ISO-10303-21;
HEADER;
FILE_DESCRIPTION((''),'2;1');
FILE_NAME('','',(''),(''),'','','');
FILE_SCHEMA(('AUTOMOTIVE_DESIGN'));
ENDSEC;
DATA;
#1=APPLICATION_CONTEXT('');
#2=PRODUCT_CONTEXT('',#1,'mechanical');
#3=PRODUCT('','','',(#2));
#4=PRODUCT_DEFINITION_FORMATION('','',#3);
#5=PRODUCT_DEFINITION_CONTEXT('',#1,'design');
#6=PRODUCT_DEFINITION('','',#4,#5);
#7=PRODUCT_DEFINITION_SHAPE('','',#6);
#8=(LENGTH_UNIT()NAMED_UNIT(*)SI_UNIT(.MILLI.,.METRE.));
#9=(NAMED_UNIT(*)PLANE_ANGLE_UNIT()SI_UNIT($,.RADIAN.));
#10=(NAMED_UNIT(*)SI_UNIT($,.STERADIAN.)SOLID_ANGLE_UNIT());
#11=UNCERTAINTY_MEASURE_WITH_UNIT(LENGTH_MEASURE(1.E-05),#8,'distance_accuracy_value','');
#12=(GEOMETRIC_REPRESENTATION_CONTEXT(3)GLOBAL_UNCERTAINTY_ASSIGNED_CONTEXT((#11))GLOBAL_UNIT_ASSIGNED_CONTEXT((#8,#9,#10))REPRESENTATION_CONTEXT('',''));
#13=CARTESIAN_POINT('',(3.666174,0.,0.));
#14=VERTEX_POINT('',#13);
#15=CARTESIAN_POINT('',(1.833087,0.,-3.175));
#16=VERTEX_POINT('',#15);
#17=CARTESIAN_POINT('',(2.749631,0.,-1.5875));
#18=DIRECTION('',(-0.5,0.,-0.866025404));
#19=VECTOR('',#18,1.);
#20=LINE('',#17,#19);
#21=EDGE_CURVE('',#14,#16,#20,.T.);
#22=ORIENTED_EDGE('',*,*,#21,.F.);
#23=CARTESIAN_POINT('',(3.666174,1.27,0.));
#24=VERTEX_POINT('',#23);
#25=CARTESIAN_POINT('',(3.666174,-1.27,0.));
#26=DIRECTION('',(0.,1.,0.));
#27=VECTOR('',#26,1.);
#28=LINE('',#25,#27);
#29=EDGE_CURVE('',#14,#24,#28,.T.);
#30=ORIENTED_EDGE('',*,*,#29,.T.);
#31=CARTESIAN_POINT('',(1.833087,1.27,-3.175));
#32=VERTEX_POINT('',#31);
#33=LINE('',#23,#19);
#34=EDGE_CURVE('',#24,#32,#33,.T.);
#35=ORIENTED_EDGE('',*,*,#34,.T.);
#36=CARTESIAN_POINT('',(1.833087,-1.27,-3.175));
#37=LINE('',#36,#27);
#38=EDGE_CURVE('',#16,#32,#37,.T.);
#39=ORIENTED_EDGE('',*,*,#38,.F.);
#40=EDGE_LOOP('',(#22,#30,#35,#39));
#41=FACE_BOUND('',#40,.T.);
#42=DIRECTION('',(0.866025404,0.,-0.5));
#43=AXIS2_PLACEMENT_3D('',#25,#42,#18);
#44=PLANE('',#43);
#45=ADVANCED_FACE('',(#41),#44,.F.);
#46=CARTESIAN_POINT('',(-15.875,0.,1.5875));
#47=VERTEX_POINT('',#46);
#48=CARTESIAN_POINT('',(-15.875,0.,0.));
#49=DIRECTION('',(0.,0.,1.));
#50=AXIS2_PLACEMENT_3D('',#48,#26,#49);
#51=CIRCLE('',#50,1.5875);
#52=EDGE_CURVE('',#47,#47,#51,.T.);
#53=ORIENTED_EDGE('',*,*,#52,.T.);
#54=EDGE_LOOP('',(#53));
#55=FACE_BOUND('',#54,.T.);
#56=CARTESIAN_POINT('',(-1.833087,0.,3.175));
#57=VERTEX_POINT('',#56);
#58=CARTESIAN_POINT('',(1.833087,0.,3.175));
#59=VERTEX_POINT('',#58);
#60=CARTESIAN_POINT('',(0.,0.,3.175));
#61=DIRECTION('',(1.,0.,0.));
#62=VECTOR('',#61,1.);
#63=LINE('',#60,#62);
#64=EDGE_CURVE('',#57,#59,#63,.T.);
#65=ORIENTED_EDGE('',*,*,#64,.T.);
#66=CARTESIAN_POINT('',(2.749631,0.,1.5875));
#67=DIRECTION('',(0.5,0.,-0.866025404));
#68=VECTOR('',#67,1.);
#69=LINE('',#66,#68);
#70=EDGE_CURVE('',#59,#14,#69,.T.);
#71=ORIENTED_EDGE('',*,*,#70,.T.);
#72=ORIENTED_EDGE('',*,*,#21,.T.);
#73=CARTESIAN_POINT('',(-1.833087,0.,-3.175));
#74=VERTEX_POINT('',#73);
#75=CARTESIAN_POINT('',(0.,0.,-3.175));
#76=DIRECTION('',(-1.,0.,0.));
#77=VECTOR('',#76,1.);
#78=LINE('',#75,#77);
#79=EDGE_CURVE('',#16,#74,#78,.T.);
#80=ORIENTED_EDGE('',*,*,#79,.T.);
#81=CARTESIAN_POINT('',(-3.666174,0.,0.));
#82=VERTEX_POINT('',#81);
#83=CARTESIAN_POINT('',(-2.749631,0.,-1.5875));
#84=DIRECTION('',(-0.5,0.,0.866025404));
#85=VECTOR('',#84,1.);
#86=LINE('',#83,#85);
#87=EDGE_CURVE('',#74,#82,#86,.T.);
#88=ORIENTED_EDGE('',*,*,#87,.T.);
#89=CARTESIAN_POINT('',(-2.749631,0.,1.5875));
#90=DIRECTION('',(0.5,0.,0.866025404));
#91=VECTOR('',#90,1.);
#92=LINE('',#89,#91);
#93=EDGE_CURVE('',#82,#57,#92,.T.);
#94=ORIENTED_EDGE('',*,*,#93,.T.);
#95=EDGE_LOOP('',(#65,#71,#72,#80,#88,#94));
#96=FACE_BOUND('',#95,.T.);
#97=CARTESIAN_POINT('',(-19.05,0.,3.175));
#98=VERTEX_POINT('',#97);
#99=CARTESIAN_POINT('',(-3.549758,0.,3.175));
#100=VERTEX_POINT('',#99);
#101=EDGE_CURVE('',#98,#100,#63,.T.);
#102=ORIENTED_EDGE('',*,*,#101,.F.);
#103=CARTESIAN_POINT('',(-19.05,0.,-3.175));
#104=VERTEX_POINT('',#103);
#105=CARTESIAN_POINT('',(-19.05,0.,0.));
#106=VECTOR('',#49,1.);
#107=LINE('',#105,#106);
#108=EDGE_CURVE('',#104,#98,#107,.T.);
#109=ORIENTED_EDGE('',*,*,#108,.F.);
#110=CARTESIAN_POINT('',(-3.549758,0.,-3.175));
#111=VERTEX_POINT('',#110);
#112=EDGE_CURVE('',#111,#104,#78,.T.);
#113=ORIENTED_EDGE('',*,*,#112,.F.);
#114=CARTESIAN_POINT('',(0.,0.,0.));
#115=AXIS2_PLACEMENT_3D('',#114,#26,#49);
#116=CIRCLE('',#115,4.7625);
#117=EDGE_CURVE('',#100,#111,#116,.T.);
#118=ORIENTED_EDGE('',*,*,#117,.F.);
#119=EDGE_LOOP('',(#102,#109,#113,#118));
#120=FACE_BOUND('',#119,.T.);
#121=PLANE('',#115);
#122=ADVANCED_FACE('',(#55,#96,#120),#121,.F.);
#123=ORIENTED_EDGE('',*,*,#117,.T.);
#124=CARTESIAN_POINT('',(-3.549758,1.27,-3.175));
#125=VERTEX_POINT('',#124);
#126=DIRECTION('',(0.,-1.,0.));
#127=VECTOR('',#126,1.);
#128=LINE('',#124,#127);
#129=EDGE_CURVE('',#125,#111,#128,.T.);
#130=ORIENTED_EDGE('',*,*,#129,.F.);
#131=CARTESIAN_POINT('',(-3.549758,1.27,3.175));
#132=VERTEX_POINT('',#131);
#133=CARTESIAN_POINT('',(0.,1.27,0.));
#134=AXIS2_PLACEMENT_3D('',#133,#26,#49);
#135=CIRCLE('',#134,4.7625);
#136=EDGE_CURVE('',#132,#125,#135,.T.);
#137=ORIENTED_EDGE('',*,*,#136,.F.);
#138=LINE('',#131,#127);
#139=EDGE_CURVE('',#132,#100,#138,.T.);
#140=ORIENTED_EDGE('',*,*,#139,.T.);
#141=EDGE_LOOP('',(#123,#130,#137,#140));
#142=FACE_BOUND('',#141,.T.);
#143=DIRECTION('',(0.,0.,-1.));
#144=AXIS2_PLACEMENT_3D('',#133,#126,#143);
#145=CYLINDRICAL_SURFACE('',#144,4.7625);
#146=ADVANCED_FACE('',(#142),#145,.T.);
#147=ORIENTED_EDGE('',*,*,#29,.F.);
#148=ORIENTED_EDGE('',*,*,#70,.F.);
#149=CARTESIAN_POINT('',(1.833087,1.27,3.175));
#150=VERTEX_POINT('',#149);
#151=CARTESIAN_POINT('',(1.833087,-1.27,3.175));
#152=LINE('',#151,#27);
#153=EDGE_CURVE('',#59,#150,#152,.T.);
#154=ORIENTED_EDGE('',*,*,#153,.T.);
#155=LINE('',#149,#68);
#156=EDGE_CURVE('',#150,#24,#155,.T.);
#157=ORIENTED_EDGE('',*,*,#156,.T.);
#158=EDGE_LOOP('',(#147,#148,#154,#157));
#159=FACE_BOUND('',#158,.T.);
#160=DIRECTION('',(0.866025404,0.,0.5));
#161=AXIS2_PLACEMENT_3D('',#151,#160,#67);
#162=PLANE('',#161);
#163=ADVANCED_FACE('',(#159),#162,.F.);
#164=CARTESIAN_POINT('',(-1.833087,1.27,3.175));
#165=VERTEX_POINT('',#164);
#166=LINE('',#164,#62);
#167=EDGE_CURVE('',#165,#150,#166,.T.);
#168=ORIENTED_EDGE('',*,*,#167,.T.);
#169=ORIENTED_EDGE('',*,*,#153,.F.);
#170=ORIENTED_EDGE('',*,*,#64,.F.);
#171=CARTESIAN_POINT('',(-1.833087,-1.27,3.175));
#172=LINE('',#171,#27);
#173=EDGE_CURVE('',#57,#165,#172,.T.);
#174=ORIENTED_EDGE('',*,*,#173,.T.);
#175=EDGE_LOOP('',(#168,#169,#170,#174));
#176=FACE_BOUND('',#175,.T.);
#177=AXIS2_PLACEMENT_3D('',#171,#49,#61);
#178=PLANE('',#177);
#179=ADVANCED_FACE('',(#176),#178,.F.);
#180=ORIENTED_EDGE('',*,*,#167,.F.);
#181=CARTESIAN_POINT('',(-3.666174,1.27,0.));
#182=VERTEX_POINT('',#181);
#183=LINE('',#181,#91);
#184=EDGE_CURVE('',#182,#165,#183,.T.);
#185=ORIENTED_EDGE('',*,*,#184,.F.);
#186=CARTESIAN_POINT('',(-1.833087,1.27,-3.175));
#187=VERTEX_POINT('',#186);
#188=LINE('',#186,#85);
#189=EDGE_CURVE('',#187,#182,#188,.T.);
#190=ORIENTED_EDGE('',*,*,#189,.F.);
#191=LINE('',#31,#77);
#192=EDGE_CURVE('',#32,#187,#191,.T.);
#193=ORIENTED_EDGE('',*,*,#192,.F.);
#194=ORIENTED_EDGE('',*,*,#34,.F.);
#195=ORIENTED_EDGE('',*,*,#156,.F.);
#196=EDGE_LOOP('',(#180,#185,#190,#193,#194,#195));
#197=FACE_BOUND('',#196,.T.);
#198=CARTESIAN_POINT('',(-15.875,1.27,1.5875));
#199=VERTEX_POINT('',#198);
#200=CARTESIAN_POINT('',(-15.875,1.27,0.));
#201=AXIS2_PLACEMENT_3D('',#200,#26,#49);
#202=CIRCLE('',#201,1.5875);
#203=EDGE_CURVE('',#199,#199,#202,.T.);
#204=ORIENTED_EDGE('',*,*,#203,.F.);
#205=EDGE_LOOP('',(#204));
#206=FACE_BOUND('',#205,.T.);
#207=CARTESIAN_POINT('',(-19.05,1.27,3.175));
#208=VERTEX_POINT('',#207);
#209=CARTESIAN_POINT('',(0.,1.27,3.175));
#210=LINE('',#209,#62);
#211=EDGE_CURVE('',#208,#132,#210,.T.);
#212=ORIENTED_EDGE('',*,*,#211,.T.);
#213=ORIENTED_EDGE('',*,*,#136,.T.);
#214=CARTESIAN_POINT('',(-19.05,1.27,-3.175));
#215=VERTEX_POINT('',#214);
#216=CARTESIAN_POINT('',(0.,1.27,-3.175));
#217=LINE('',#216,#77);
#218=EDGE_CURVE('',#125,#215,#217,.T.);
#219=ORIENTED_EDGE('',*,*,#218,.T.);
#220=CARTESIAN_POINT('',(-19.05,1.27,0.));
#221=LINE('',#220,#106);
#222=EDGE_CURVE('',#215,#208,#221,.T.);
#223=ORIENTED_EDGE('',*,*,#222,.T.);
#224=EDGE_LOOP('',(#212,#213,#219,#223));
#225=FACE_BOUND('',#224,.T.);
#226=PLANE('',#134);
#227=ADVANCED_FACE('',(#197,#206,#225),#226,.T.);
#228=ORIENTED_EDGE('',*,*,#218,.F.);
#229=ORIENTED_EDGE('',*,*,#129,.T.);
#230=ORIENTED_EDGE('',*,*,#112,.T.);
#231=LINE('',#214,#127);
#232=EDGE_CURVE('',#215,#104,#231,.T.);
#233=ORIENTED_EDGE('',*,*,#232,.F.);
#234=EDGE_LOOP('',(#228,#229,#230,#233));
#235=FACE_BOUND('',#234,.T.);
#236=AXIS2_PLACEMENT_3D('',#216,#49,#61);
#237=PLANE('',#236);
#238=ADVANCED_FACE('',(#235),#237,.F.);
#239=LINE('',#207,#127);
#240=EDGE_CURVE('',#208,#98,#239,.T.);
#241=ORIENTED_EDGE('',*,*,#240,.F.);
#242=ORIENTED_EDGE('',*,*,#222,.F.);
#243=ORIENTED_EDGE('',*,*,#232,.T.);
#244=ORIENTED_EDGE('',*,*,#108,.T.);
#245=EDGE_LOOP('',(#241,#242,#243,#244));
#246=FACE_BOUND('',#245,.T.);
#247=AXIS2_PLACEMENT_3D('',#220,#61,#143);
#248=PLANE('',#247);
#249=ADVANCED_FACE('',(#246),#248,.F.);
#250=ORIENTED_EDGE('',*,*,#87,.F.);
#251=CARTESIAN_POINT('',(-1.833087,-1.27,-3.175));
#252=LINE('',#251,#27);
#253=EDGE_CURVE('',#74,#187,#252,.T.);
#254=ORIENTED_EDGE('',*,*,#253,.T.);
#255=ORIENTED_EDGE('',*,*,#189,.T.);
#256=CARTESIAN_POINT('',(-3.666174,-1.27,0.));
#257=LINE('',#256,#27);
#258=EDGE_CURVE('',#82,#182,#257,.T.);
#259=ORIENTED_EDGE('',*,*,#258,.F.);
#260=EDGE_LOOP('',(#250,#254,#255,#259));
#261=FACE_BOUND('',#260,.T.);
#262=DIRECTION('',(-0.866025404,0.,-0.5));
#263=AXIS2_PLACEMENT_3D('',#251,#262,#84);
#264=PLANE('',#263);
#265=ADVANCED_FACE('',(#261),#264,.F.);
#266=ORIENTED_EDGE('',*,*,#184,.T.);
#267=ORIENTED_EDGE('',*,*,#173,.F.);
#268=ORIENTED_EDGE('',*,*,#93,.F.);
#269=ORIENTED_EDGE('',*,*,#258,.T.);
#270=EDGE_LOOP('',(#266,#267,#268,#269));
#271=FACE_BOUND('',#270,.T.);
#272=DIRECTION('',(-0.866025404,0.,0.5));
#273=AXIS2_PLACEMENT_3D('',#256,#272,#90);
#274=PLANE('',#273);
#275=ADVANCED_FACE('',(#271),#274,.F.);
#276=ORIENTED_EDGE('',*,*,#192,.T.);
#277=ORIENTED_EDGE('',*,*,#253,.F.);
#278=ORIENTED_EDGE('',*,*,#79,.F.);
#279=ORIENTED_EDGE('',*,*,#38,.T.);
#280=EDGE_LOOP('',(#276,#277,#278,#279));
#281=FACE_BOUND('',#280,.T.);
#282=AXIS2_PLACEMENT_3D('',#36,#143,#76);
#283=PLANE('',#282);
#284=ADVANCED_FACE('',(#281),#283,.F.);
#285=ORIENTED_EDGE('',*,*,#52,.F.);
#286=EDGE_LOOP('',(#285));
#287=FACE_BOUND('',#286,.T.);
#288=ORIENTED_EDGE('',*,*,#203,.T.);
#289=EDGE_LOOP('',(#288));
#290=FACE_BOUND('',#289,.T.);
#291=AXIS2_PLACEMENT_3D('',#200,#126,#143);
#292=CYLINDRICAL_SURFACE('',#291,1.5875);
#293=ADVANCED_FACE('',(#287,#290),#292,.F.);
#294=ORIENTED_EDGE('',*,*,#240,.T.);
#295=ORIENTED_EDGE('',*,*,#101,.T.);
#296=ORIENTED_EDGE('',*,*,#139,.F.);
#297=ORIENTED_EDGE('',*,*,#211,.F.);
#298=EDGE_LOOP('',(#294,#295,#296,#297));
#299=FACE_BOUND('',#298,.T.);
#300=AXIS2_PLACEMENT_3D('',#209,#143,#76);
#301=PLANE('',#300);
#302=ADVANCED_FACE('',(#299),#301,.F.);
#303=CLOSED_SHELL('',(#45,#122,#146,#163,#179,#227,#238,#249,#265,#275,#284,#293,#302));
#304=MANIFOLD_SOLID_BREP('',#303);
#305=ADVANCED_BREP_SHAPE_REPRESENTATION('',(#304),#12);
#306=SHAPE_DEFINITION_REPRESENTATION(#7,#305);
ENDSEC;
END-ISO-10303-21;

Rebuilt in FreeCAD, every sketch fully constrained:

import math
import FreeCAD as App
import Part
import Sketcher

V = App.Vector
Q = App.Units.Quantity


def add_polygon(sketch, points):
    """Adds a closed chain of lines whose ends are joined by coincident constraints."""
    first, n = sketch.GeometryCount, len(points)
    for a, b in zip(points, points[1:] + points[:1]):
        sketch.addGeometry(Part.LineSegment(App.Vector(*a, 0), App.Vector(*b, 0)), False)
    for i in range(n):
        sketch.addConstraint(Sketcher.Constraint("Coincident", first + i, 2, first + (i + 1) % n, 1))

doc = App.newDocument("Part")
body = doc.addObject("PartDesign::Body", "Body")

sketch1 = body.newObject("Sketcher::SketchObject", "Sketch")
sketch1.AttachmentSupport = (doc.getObject("XZ_Plane"), [""])
sketch1.MapMode = "FlatFace"
sketch1.addGeometry(Part.LineSegment(V(-19.1, 3.2, 0), V(-3.5, 3.2, 0)), False)
sketch1.addGeometry(Part.ArcOfCircle(Part.Circle(V(0, 0, 0), V(0, 0, 1), 4.8), math.radians(0), math.radians(138)), False)
sketch1.addGeometry(Part.ArcOfCircle(Part.Circle(V(0, 0, 0), V(0, 0, 1), 4.8), math.radians(-138), math.radians(0)), False)
sketch1.addGeometry(Part.LineSegment(V(-3.5, -3.2, 0), V(-19.1, -3.2, 0)), False)
sketch1.addGeometry(Part.LineSegment(V(-19.1, -3.2, 0), V(-19.1, 3.2, 0)), False)
sketch1.addGeometry(Part.Circle(V(-15.9, 0, 0), V(0, 0, 1), 1.6), False)
sketch1.addConstraint(Sketcher.Constraint("Coincident", 0, 2, 1, 2))
sketch1.addConstraint(Sketcher.Constraint("Tangent", 1, 1, 2, 2))
sketch1.addConstraint(Sketcher.Constraint("Coincident", 2, 1, 3, 1))
sketch1.addConstraint(Sketcher.Constraint("Coincident", 3, 2, 4, 1))
sketch1.addConstraint(Sketcher.Constraint("Coincident", 4, 2, 0, 1))
sketch1.addConstraint(Sketcher.Constraint("Horizontal", 0))
sketch1.addConstraint(Sketcher.Constraint("Horizontal", 3))
sketch1.addConstraint(Sketcher.Constraint("Vertical", 4))
sketch1.addConstraint(Sketcher.Constraint("Coincident", 1, 3, -1, 1))
sketch1.addConstraint(Sketcher.Constraint("Equal", 1, 2))
sketch1.addConstraint(Sketcher.Constraint("PointOnObject", 5, 3, -1))
sketch1.addConstraint(Sketcher.Constraint("PointOnObject", 1, 1, -1))
sketch1.addConstraint(Sketcher.Constraint("Vertical", 0, 2, 2, 1))
sketch1.addConstraint(Sketcher.Constraint("Diameter", 5, Q("0.125 in")))
sketch1.addConstraint(Sketcher.Constraint("Radius", 1, Q("0.1875 in")))
sketch1.addConstraint(Sketcher.Constraint("DistanceY", 4, 1, 4, 2, Q("0.25 in")))
sketch1.addConstraint(Sketcher.Constraint("DistanceX", 3, 2, -1, 1, Q("0.75 in")))
sketch1.addConstraint(Sketcher.Constraint("DistanceX", 5, 3, -1, 1, Q("0.625 in")))
pad1 = body.newObject("PartDesign::Pad", "Pad")
pad1.Profile = sketch1
pad1.Length = Q("0.05 in")
pad1.Reversed = True

sketch2 = body.newObject("Sketcher::SketchObject", "Sketch001")
sketch2.AttachmentSupport = (doc.getObject("XZ_Plane"), [""])
sketch2.MapMode = "FlatFace"
sketch2.AttachmentOffset = App.Placement(V(0, 0, -0.05 * 25.4), App.Rotation())
add_polygon(sketch2, [(3.7, 0), (1.8, -3.2), (-1.8, -3.2), (-3.7, 0), (-1.8, 3.2), (1.8, 3.2)])
sketch2.addConstraint(Sketcher.Constraint("Horizontal", 1))
sketch2.addConstraint(Sketcher.Constraint("Horizontal", 4))
sketch2.addConstraint(Sketcher.Constraint("Symmetric", 0, 2, 3, 2, -1, 1))
sketch2.addConstraint(Sketcher.Constraint("Symmetric", 2, 2, 5, 2, -1, 1))
sketch2.addConstraint(Sketcher.Constraint("PointOnObject", 2, 2, -1))
sketch2.addConstraint(Sketcher.Constraint("Parallel", 2, 5))
sketch2.addConstraint(Sketcher.Constraint("Vertical", 1, 2, 3, 2))
sketch2.addConstraint(Sketcher.Constraint("Angle", 0, Q("-120 deg")))
sketch2.addConstraint(Sketcher.Constraint("DistanceY", 1, 2, 3, 2, Q("0.25 in")))
sketch2.addConstraint(Sketcher.Constraint("DistanceX", 1, 2, 1, 1, 3.666174))
pocket1 = body.newObject("PartDesign::Pocket", "Pocket")
pocket1.Profile = sketch2
pocket1.Length = Q("0.1 in")
pocket1.Reversed = True

doc.recompute()
